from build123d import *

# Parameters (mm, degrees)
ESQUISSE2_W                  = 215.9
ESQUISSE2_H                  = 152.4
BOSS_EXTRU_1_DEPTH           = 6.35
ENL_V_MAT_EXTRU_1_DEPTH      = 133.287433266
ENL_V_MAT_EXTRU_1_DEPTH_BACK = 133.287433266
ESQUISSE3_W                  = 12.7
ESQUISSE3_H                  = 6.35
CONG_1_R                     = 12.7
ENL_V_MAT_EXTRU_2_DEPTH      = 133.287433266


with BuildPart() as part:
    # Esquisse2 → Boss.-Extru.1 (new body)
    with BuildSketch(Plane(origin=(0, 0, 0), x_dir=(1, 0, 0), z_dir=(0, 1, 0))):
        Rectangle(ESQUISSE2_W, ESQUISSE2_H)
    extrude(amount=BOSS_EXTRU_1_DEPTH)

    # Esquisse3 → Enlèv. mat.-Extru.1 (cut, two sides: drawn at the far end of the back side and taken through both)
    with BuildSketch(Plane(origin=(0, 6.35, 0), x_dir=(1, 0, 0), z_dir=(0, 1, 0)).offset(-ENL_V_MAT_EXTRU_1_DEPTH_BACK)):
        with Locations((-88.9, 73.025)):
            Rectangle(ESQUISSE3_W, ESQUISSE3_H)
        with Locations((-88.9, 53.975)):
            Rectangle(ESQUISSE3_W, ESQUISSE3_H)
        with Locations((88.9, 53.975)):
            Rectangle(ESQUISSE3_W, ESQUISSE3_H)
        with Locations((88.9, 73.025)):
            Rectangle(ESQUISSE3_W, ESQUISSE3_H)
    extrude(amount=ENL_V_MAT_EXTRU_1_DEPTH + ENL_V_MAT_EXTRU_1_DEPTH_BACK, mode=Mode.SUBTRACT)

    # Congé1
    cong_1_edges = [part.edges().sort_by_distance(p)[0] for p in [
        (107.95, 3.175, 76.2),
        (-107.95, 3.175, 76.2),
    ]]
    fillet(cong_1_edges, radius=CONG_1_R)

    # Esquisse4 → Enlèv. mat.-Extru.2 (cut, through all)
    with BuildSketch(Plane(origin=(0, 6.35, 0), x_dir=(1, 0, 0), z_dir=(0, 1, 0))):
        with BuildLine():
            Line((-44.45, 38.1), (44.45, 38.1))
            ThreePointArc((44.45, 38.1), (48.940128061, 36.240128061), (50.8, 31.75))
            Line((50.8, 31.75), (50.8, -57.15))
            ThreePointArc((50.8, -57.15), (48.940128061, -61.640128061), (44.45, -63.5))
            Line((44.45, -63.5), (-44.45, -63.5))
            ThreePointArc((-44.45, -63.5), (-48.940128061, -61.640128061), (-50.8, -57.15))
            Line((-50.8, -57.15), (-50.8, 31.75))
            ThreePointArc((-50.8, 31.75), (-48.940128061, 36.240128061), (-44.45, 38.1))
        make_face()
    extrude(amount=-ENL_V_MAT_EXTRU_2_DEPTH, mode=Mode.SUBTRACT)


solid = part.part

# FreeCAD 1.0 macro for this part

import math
import FreeCAD as App
import Part
import Sketcher

V = App.Vector
Q = App.Units.Quantity


def edges_at(feature, points):
    """Names of the edges that pass closest to the given points."""
    edges = feature.Shape.Edges
    near = lambda p: min(range(len(edges)), key=lambda i: edges[i].distToShape(Part.Vertex(*p))[0])
    return sorted({f"Edge{near(p) + 1}" for p in points})


def add_polygon(sketch, points):
    """Adds a closed chain of lines whose ends are joined by coincident constraints."""
    first, n = sketch.GeometryCount, len(points)
    for a, b in zip(points, points[1:] + points[:1]):
        sketch.addGeometry(Part.LineSegment(App.Vector(*a, 0), App.Vector(*b, 0)), False)
    for i in range(n):
        sketch.addConstraint(Sketcher.Constraint("Coincident", first + i, 2, first + (i + 1) % n, 1))

doc = App.newDocument("Part")
body = doc.addObject("PartDesign::Body", "Body")

# Sketch on XZ plane
sketch1 = body.newObject("Sketcher::SketchObject", "Sketch")
sketch1.AttachmentSupport = (doc.getObject("XZ_Plane"), [""])
sketch1.MapMode = "FlatFace"
add_polygon(sketch1, [(-107.95, -76.2), (-107.95, 76.2), (107.95, 76.2), (107.95, -76.2)])  # lines 0-3
sketch1.addConstraint(Sketcher.Constraint("Vertical", 0))
sketch1.addConstraint(Sketcher.Constraint("Horizontal", 1))
sketch1.addConstraint(Sketcher.Constraint("Vertical", 2))
sketch1.addConstraint(Sketcher.Constraint("Horizontal", 3))
sketch1.addConstraint(Sketcher.Constraint("Symmetric", 0, 2, 2, 2, -1, 1))
sketch1.addConstraint(Sketcher.Constraint("DistanceY", 0, 1, 0, 2, Q("6 in")))
sketch1.addConstraint(Sketcher.Constraint("DistanceX", 1, 1, 1, 2, Q("8.5 in")))
pad1 = body.newObject("PartDesign::Pad", "Pad")
pad1.Profile = sketch1
pad1.Length = Q("0.25 in")
pad1.Reversed = True

# Sketch on XZ plane
sketch2 = body.newObject("Sketcher::SketchObject", "Sketch001")
sketch2.AttachmentSupport = (doc.getObject("XZ_Plane"), [""])
sketch2.MapMode = "FlatFace"
sketch2.AttachmentOffset = App.Placement(V(0, 0, -0.25 * 25.4), App.Rotation())
add_polygon(sketch2, [(-95.25, -76.2), (-95.25, -69.85), (-82.55, -69.85), (-82.55, -76.2)])  # lines 0-3
add_polygon(sketch2, [(-95.25, -57.15), (-95.25, -50.8), (-82.55, -50.8), (-82.55, -57.15)])  # lines 4-7
add_polygon(sketch2, [(82.55, -57.15), (82.55, -50.8), (95.25, -50.8), (95.25, -57.15)])  # lines 8-11
add_polygon(sketch2, [(82.55, -76.2), (82.55, -69.85), (95.25, -69.85), (95.25, -76.2)])  # lines 12-15
sketch2.addConstraint(Sketcher.Constraint("Vertical", 0))
sketch2.addConstraint(Sketcher.Constraint("Horizontal", 1))
sketch2.addConstraint(Sketcher.Constraint("Vertical", 2))
sketch2.addConstraint(Sketcher.Constraint("Horizontal", 3))
sketch2.addConstraint(Sketcher.Constraint("Vertical", 4))
sketch2.addConstraint(Sketcher.Constraint("Horizontal", 5))
sketch2.addConstraint(Sketcher.Constraint("Vertical", 6))
sketch2.addConstraint(Sketcher.Constraint("Horizontal", 7))
sketch2.addConstraint(Sketcher.Constraint("Vertical", 8))
sketch2.addConstraint(Sketcher.Constraint("Horizontal", 9))
sketch2.addConstraint(Sketcher.Constraint("Vertical", 10))
sketch2.addConstraint(Sketcher.Constraint("Horizontal", 11))
sketch2.addConstraint(Sketcher.Constraint("Vertical", 12))
sketch2.addConstraint(Sketcher.Constraint("Horizontal", 13))
sketch2.addConstraint(Sketcher.Constraint("Vertical", 14))
sketch2.addConstraint(Sketcher.Constraint("Horizontal", 15))
sketch2.addConstraint(Sketcher.Constraint("Symmetric", 5, 2, 8, 2, -2))
sketch2.addConstraint(Sketcher.Constraint("Symmetric", 7, 2, 10, 2, -2))
sketch2.addConstraint(Sketcher.Constraint("Symmetric", 1, 2, 12, 2, -2))
sketch2.addConstraint(Sketcher.Constraint("Symmetric", 3, 2, 14, 2, -2))
sketch2.addConstraint(Sketcher.Constraint("Vertical", 3, 2, 4, 2))
sketch2.addConstraint(Sketcher.Constraint("Vertical", 2, 2, 5, 2))
sketch2.addConstraint(Sketcher.Constraint("Equal", 2, 4))
sketch2.addConstraint(Sketcher.Constraint("DistanceX", 1, 1, 1, 2, Q("0.5 in")))
sketch2.addConstraint(Sketcher.Constraint("DistanceY", 2, 2, -1, 1, Q("3 in")))
sketch2.addConstraint(Sketcher.Constraint("DistanceY", 4, 2, -1, 1, Q("2 in")))
sketch2.addConstraint(Sketcher.Constraint("DistanceX", 4, 2, 8, 2, Q("7 in")))
sketch2.addConstraint(Sketcher.Constraint("DistanceY", 0, 1, 0, 2, Q("0.25 in")))
pocket1 = body.newObject("PartDesign::Pocket", "Pocket")
pocket1.Profile = sketch2
pocket1.Type = "ThroughAll"
pocket1.Midplane = True
doc.recompute()

fillet = body.newObject("PartDesign::Fillet", "Fillet")
fillet.Base = (pocket1, edges_at(pocket1, [(107.95, 3.175, 76.2), (-107.95, 3.175, 76.2)]))
fillet.Radius = Q("0.5 in")

# Sketch on XZ plane
sketch3 = body.newObject("Sketcher::SketchObject", "Sketch002")
sketch3.AttachmentSupport = (doc.getObject("XZ_Plane"), [""])
sketch3.MapMode = "FlatFace"
sketch3.AttachmentOffset = App.Placement(V(0, 0, -0.25 * 25.4), App.Rotation())
sketch3.addGeometry(Part.LineSegment(V(44.45, -38.1, 0), V(-44.45, -38.1, 0)), False)
sketch3.addGeometry(Part.ArcOfCircle(Part.Circle(V(-44.45, -31.75, 0), V(0, 0, 1), 6.35), math.radians(180), math.radians(270)), False)
sketch3.addGeometry(Part.LineSegment(V(-50.8, -31.75, 0), V(-50.8, 57.15, 0)), False)
sketch3.addGeometry(Part.ArcOfCircle(Part.Circle(V(-44.45, 57.15, 0), V(0, 0, 1), 6.35), math.radians(90), math.radians(180)), False)
sketch3.addGeometry(Part.LineSegment(V(-44.45, 63.5, 0), V(44.45, 63.5, 0)), False)
sketch3.addGeometry(Part.ArcOfCircle(Part.Circle(V(44.45, 57.15, 0), V(0, 0, 1), 6.35), math.radians(0), math.radians(90)), False)
sketch3.addGeometry(Part.LineSegment(V(50.8, 57.15, 0), V(50.8, -31.75, 0)), False)
sketch3.addGeometry(Part.ArcOfCircle(Part.Circle(V(44.45, -31.75, 0), V(0, 0, 1), 6.35), math.radians(-90), math.radians(0)), False)
sketch3.addConstraint(Sketcher.Constraint("Tangent", 0, 2, 1, 2))
sketch3.addConstraint(Sketcher.Constraint("Tangent", 1, 1, 2, 1))
sketch3.addConstraint(Sketcher.Constraint("Tangent", 2, 2, 3, 2))
sketch3.addConstraint(Sketcher.Constraint("Tangent", 3, 1, 4, 1))
sketch3.addConstraint(Sketcher.Constraint("Tangent", 4, 2, 5, 2))
sketch3.addConstraint(Sketcher.Constraint("Tangent", 5, 1, 6, 1))
sketch3.addConstraint(Sketcher.Constraint("Tangent", 6, 2, 7, 2))
sketch3.addConstraint(Sketcher.Constraint("Tangent", 7, 1, 0, 1))
sketch3.addConstraint(Sketcher.Constraint("Horizontal", 0))
sketch3.addConstraint(Sketcher.Constraint("Vertical", 2))
sketch3.addConstraint(Sketcher.Constraint("Horizontal", 4))
sketch3.addConstraint(Sketcher.Constraint("Vertical", 6))
sketch3.addConstraint(Sketcher.Constraint("Equal", 1, 3))
sketch3.addConstraint(Sketcher.Constraint("Equal", 3, 5))
sketch3.addConstraint(Sketcher.Constraint("Equal", 5, 7))
sketch3.addConstraint(Sketcher.Constraint("Equal", 4, 2))
sketch3.addConstraint(Sketcher.Constraint("Radius", 1, Q("0.25 in")))
sketch3.addConstraint(Sketcher.Constraint("DistanceX", 0, 2, 0, 1, Q("3.5 in")))
sketch3.addConstraint(Sketcher.Constraint("DistanceX", 1, 1, -1, 1, Q("2 in")))
sketch3.addConstraint(Sketcher.Constraint("DistanceY", 0, 2, -1, 1, Q("1.5 in")))
pocket2 = body.newObject("PartDesign::Pocket", "Pocket001")
pocket2.Profile = sketch3
pocket2.Type = "ThroughAll"
pocket2.Reversed = True

doc.recompute()
